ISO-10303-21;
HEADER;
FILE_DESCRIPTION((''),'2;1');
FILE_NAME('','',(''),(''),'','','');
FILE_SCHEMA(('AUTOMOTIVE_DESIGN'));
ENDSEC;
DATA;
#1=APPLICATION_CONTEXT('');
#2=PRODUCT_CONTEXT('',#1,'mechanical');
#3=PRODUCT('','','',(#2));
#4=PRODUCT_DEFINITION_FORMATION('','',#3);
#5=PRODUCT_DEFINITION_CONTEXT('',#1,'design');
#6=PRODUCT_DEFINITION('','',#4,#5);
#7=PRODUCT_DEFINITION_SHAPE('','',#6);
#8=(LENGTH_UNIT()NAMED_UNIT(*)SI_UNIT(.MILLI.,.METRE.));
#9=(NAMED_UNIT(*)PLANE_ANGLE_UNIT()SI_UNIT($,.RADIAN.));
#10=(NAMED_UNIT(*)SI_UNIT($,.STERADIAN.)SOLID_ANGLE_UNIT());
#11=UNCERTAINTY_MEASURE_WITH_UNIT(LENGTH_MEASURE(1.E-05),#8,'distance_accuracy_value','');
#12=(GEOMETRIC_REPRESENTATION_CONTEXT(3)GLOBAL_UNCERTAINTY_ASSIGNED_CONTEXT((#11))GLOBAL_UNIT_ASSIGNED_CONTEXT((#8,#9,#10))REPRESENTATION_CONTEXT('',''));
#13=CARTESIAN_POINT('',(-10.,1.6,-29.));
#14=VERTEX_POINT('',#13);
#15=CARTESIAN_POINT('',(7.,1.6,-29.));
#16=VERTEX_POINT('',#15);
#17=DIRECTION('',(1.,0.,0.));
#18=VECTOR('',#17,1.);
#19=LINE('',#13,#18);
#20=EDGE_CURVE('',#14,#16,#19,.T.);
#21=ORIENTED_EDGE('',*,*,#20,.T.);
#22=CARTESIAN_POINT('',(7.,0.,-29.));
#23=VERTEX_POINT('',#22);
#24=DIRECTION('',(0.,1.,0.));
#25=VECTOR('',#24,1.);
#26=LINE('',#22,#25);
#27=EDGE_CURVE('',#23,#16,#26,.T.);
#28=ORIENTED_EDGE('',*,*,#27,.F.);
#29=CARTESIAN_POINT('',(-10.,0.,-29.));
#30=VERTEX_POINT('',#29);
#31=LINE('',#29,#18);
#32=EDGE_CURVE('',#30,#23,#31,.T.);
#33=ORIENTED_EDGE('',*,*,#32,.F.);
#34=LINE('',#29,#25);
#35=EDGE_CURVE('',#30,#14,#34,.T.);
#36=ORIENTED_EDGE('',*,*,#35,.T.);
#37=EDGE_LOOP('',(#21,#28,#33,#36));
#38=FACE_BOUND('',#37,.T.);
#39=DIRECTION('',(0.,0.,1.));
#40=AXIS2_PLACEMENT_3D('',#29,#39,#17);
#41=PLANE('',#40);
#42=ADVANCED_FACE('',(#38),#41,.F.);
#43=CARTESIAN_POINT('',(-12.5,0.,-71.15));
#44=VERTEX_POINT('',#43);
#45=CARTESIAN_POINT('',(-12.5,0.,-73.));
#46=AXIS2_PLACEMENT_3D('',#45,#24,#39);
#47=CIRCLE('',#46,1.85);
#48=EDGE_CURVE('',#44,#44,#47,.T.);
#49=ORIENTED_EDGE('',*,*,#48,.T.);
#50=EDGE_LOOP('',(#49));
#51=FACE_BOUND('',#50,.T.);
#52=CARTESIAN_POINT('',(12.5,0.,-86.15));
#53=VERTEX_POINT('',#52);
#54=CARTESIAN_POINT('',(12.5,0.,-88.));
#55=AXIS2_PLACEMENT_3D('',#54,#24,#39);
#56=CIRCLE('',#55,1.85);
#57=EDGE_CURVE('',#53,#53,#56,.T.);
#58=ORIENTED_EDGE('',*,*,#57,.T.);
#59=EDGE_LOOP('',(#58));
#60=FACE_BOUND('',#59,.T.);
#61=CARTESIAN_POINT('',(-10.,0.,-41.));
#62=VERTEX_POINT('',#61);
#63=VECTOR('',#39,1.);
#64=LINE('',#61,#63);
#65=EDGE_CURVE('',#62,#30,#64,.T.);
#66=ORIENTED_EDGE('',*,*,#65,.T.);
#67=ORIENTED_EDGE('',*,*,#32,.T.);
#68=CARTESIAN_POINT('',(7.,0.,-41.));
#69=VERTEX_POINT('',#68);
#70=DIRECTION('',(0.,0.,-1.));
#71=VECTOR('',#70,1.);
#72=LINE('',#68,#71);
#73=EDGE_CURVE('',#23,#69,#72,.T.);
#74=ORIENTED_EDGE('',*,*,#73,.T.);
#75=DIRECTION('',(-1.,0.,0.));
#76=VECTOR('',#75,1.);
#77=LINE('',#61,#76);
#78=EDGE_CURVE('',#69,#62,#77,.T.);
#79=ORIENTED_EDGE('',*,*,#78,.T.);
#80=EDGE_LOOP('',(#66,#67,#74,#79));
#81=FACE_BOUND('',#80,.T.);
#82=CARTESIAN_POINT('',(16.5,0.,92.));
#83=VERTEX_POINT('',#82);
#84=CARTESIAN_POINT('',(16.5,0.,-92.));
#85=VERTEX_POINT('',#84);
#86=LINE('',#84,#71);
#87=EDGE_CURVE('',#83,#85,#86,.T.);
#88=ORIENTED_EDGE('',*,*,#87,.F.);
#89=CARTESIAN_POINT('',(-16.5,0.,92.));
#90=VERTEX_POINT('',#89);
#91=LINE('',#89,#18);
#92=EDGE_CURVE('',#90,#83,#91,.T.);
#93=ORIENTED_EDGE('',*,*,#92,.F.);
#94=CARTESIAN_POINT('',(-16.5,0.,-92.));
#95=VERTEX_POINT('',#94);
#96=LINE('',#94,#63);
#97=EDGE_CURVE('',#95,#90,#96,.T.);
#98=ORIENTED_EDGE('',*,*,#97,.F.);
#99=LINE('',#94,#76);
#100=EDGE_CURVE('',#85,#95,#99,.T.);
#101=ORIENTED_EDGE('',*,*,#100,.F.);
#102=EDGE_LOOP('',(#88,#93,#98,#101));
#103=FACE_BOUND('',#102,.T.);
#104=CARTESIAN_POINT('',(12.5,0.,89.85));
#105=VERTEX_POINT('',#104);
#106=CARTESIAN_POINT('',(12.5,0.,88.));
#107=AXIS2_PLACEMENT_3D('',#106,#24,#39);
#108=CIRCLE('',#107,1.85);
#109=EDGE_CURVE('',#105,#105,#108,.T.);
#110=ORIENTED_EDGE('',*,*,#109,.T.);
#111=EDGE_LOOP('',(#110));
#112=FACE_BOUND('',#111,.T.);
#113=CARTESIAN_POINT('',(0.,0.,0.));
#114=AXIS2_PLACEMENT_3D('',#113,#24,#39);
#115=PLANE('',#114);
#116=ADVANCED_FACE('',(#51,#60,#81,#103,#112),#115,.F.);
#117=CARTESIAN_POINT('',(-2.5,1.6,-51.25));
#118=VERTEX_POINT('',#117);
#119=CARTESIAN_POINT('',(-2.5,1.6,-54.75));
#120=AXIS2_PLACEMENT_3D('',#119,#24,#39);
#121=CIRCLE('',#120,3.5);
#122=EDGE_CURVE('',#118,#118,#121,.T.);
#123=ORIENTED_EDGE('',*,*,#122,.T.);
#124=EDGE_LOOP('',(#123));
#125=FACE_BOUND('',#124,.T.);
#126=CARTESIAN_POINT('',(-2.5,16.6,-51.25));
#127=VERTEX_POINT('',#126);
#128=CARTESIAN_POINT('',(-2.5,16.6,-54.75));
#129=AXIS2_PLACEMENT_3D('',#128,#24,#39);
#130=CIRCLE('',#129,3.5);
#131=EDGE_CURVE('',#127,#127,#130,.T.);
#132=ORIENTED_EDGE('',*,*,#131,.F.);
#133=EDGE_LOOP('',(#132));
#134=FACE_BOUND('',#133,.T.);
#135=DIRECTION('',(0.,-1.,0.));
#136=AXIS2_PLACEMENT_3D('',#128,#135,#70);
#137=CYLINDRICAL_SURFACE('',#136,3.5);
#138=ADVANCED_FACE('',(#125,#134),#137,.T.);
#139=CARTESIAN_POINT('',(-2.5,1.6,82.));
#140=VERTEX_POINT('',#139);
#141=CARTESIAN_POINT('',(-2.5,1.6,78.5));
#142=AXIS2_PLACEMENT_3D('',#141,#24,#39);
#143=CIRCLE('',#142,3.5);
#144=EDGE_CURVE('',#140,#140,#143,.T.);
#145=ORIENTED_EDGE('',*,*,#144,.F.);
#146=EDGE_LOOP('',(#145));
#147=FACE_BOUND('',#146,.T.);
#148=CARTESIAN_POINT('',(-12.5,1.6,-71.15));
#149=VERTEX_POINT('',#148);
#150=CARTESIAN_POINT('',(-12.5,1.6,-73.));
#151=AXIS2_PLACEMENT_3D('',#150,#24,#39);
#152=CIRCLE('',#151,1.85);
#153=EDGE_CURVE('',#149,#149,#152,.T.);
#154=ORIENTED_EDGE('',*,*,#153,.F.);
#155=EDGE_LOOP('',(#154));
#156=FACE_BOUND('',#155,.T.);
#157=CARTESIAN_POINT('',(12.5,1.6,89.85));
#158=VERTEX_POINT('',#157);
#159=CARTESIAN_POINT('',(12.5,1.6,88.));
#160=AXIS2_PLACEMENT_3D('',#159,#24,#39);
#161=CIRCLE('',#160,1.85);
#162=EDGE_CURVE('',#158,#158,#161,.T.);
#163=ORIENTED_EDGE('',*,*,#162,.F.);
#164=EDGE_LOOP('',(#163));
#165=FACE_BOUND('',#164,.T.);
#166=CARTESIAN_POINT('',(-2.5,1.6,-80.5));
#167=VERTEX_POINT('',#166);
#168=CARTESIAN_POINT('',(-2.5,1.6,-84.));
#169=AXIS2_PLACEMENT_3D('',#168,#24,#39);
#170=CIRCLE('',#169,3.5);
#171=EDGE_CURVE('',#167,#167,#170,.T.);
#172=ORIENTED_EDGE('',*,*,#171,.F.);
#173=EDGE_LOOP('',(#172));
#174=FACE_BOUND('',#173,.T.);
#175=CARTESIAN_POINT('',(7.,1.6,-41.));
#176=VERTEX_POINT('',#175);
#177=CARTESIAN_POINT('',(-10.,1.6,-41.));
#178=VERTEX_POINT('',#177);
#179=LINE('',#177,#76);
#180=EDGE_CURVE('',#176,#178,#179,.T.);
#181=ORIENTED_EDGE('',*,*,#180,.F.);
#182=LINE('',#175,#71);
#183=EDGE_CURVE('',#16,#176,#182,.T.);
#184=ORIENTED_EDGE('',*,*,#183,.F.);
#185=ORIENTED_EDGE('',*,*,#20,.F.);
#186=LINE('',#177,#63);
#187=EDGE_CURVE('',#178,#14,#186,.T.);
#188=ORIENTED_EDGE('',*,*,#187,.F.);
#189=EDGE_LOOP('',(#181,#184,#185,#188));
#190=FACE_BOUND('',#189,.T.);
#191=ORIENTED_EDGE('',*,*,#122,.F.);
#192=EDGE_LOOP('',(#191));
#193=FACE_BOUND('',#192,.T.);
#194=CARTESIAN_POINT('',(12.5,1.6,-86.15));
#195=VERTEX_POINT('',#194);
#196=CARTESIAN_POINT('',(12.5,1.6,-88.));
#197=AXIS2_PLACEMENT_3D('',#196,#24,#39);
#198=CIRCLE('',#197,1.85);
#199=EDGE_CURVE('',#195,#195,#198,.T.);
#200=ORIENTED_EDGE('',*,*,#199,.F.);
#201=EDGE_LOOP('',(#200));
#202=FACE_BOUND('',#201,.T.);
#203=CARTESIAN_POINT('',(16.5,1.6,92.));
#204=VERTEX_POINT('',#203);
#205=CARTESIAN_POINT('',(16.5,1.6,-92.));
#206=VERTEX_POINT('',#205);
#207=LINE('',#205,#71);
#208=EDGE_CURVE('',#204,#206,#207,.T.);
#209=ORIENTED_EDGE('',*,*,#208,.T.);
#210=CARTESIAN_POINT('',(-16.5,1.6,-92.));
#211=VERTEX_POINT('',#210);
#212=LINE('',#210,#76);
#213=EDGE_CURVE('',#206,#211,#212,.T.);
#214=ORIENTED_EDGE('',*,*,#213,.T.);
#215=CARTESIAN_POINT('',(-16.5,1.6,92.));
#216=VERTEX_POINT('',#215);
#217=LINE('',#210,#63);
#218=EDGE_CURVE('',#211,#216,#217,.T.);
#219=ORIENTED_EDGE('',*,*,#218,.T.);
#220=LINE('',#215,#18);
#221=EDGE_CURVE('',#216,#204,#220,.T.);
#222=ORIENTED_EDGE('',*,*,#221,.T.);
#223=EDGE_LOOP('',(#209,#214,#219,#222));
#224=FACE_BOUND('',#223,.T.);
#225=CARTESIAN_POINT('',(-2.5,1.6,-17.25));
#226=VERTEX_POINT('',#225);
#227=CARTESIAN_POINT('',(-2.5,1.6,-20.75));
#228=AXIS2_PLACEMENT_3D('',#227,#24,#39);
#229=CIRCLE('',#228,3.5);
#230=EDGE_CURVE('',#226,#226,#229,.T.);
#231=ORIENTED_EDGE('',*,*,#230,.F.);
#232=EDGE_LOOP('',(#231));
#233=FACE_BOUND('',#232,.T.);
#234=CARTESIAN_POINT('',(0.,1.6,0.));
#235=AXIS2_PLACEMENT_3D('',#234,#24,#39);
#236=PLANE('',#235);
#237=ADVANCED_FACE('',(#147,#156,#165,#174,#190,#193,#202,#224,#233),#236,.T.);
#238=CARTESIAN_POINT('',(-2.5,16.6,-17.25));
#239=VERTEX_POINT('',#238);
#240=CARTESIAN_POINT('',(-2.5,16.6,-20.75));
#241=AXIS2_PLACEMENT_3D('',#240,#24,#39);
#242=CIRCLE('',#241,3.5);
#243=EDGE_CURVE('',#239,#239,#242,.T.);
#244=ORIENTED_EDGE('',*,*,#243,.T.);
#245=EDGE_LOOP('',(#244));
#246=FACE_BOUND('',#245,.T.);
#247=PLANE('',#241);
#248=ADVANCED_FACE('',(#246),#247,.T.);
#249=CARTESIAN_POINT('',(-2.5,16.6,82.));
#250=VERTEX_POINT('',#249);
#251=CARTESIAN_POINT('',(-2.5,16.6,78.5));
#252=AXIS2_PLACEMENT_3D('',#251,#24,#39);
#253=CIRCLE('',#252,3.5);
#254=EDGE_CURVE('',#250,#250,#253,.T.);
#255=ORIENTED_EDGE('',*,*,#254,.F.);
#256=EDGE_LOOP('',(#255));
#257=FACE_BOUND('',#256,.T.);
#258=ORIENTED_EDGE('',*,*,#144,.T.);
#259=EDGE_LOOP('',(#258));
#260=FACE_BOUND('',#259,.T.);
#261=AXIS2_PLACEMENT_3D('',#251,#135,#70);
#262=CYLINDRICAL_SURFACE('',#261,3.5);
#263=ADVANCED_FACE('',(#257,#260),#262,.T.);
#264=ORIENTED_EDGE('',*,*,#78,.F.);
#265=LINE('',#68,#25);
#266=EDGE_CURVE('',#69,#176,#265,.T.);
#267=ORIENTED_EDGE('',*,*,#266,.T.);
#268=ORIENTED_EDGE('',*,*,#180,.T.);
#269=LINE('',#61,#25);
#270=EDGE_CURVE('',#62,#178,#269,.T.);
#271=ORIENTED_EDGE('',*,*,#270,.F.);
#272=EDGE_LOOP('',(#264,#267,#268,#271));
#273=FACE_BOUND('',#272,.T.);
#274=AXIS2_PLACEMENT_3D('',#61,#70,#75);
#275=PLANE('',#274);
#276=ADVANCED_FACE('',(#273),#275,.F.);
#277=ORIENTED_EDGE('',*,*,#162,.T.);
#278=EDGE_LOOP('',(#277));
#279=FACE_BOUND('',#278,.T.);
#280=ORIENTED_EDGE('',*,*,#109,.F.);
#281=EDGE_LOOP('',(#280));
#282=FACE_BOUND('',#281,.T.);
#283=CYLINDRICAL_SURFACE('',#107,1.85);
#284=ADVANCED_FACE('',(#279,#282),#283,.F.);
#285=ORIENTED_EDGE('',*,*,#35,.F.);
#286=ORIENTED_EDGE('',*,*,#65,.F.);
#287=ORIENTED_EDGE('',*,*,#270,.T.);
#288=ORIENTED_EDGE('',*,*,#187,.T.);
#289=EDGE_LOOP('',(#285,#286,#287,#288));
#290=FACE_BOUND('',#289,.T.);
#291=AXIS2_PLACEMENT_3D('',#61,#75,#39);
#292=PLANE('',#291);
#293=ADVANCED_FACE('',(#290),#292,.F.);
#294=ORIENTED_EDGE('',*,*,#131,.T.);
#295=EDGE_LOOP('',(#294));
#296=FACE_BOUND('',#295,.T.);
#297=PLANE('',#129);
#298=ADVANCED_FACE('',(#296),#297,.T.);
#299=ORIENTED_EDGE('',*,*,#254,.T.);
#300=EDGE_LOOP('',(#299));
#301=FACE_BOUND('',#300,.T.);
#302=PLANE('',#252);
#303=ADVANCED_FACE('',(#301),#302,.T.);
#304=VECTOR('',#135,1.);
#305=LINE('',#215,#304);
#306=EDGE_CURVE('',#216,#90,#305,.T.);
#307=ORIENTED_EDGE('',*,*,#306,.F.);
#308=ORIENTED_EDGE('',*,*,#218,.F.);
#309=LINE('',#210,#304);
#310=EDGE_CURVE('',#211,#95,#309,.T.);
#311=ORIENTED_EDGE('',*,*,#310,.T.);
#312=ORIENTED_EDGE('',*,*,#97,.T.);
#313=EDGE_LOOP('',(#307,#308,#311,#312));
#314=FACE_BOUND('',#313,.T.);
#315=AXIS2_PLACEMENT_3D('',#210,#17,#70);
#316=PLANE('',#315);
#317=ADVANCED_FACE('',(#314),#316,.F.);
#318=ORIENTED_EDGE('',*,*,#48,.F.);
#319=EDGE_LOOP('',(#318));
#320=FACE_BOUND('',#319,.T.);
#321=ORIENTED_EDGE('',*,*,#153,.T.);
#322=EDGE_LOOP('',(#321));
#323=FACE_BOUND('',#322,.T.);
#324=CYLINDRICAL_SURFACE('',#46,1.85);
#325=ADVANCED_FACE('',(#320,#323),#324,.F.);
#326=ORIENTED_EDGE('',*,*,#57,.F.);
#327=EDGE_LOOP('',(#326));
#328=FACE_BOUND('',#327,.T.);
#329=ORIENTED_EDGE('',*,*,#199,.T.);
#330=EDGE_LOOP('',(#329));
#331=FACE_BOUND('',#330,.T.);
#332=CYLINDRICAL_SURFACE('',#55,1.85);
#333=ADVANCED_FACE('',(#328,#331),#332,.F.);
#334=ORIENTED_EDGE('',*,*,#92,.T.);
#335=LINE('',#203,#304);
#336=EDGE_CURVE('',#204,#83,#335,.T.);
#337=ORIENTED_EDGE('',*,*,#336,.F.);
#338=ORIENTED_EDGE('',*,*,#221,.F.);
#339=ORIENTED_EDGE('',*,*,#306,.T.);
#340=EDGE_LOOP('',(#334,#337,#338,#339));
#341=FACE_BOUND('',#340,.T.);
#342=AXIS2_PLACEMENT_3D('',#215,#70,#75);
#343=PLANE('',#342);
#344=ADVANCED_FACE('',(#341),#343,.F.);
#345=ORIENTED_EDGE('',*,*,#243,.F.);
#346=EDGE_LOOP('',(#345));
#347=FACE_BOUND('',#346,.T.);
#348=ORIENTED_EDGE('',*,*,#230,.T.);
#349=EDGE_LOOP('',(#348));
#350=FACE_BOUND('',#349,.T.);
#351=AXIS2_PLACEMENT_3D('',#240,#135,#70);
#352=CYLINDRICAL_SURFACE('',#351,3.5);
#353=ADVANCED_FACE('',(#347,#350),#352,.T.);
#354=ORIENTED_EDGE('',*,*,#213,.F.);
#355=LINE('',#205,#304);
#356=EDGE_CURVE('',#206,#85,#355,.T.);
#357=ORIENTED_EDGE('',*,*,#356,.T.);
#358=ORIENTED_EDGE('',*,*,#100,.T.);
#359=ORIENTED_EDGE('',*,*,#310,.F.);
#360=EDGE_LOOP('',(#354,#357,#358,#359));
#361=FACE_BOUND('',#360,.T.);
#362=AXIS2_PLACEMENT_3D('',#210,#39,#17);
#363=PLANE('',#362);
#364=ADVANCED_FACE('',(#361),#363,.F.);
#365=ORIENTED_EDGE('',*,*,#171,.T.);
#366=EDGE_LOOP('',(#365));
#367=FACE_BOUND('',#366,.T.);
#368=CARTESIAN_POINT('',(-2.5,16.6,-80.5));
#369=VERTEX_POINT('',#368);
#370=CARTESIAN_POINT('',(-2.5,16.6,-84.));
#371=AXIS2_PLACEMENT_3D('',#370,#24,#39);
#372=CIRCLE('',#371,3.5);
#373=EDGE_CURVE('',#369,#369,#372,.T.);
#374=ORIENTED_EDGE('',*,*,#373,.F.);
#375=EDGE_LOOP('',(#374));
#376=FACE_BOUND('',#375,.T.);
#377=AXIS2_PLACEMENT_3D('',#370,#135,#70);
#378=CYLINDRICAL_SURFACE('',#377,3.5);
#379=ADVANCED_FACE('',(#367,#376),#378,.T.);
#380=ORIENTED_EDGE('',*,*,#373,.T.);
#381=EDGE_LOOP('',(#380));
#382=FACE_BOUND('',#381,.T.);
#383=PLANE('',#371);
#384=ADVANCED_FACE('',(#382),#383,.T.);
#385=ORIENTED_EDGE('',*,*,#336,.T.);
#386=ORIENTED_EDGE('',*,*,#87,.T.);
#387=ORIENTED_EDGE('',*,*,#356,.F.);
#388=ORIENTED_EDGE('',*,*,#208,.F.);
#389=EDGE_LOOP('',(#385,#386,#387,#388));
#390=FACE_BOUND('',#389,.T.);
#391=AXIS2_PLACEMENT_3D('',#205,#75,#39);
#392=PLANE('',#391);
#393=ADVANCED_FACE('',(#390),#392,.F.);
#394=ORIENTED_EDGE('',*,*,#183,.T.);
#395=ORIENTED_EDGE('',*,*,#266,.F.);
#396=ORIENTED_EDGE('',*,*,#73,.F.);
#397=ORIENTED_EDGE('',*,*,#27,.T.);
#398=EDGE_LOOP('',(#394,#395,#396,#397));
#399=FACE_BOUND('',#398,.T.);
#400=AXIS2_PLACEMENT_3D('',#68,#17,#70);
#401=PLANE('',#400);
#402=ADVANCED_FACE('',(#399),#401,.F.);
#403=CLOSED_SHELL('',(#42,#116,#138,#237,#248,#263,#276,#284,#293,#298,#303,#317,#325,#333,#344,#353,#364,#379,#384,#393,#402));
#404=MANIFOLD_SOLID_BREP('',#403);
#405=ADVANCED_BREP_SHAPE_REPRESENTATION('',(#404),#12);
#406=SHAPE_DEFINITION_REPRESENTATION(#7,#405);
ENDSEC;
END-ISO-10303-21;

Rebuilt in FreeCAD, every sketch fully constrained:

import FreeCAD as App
import Part
import Sketcher
Q = App.Units.Quantity


def add_polygon(sketch, points):
    """Adds a closed chain of lines whose ends are joined by coincident constraints."""
    first, n = sketch.GeometryCount, len(points)
    for a, b in zip(points, points[1:] + points[:1]):
        sketch.addGeometry(Part.LineSegment(App.Vector(*a, 0), App.Vector(*b, 0)), False)
    for i in range(n):
        sketch.addConstraint(Sketcher.Constraint("Coincident", first + i, 2, first + (i + 1) % n, 1))

doc = App.newDocument("Part")
body = doc.addObject("PartDesign::Body", "Body")

sketch1 = body.newObject("Sketcher::SketchObject", "Sketch")
sketch1.AttachmentSupport = (doc.getObject("XZ_Plane"), [""])
sketch1.MapMode = "FlatFace"
add_polygon(sketch1, [(-16, -92), (-16, 92), (16, 92), (16, -92)])
sketch1.addConstraint([
    Sketcher.Constraint("Vertical", 0),
    Sketcher.Constraint("Horizontal", 1),
    Sketcher.Constraint("Vertical", 2),
    Sketcher.Constraint("Horizontal", 3),
    Sketcher.Constraint("Symmetric", 0, 2, 2, 2, -1, 1),
    Sketcher.Constraint("DistanceX", 1, 1, 1, 2, Q("33 mm")),
    Sketcher.Constraint("DistanceY", 0, 1, 0, 2, Q("184 mm")),
])
pad1 = body.newObject("PartDesign::Pad", "Pad")
pad1.Profile = sketch1
pad1.Length = 1.6
pad1.Reversed = True

sketch2 = body.newObject("Sketcher::SketchObject", "Sketch001")
sketch2.AttachmentSupport = (doc.getObject("XZ_Plane"), [""])
sketch2.MapMode = "FlatFace"
sketch2.AttachmentOffset = App.Placement(App.Vector(0, 0, -1.6), App.Rotation())
sketch2.addGeometry([
    Part.Circle(App.Vector(-12.5, -73, 0), App.Vector(0, 0, 1), 1.9),
    Part.Circle(App.Vector(12.5, -88, 0), App.Vector(0, 0, 1), 1.9),
    Part.Circle(App.Vector(12.5, 88, 0), App.Vector(0, 0, 1), 1.9),
], False)
sketch2.addConstraint([
    Sketcher.Constraint("Equal", 0, 1),
    Sketcher.Constraint("Equal", 1, 2),
    Sketcher.Constraint("Symmetric", 1, 3, 2, 3, -1),
    Sketcher.Constraint("Diameter", 0, Q("3.7 mm")),
    Sketcher.Constraint("DistanceY", 0, 3, -1, 1, Q("73 mm")),
    Sketcher.Constraint("DistanceY", 1, 3, -1, 1, Q("88 mm")),
    Sketcher.Constraint("DistanceX", 0, 3, 1, 3, Q("25 mm")),
    Sketcher.Constraint("DistanceX", 0, 3, -1, 1, Q("12.5 mm")),
])
pocket1 = body.newObject("PartDesign::Pocket", "Pocket")
pocket1.Profile = sketch2
pocket1.Type = "ThroughAll"
pocket1.Reversed = True

sketch3 = body.newObject("Sketcher::SketchObject", "Sketch002")
sketch3.AttachmentSupport = (doc.getObject("XZ_Plane"), [""])
sketch3.MapMode = "FlatFace"
sketch3.AttachmentOffset = App.Placement(App.Vector(0, 0, -1.6), App.Rotation())
sketch3.addGeometry([
    Part.Circle(App.Vector(-2.5, -84, 0), App.Vector(0, 0, 1), 3.5),
    Part.Circle(App.Vector(-2.5, -54.8, 0), App.Vector(0, 0, 1), 3.5),
    Part.Circle(App.Vector(-2.5, -20.8, 0), App.Vector(0, 0, 1), 3.5),
    Part.Circle(App.Vector(-2.5, 78.5, 0), App.Vector(0, 0, 1), 3.5),
], False)
sketch3.addConstraint([
    Sketcher.Constraint("Equal", 0, 1),
    Sketcher.Constraint("Equal", 1, 2),
    Sketcher.Constraint("Equal", 2, 3),
    Sketcher.Constraint("Vertical", 0, 3, 1, 3),
    Sketcher.Constraint("Vertical", 1, 3, 2, 3),
    Sketcher.Constraint("Vertical", 2, 3, 3, 3),
    Sketcher.Constraint("Diameter", 0, Q("7 mm")),
    Sketcher.Constraint("DistanceY", 0, 3, -1, 1, Q("84 mm")),
    Sketcher.Constraint("DistanceY", 1, 3, 2, 3, Q("34 mm")),
    Sketcher.Constraint("DistanceX", 0, 3, -1, 1, Q("2.5 mm")),
    Sketcher.Constraint("DistanceY", -1, 1, 3, 3, Q("78.5 mm")),
    Sketcher.Constraint("DistanceY", 1, 3, -1, 1, Q("54.75 mm")),
])
pad2 = body.newObject("PartDesign::Pad", "Pad001")
pad2.Profile = sketch3
pad2.Length = 15
pad2.Reversed = True

sketch4 = body.newObject("Sketcher::SketchObject", "Sketch003")
sketch4.AttachmentSupport = (doc.getObject("XZ_Plane"), [""])
sketch4.MapMode = "FlatFace"
sketch4.AttachmentOffset = App.Placement(App.Vector(0, 0, -1.6), App.Rotation())
add_polygon(sketch4, [(-10, -41), (-10, -29), (7, -29), (7, -41)])
sketch4.addConstraint([
    Sketcher.Constraint("Vertical", 0),
    Sketcher.Constraint("Horizontal", 1),
    Sketcher.Constraint("Vertical", 2),
    Sketcher.Constraint("Horizontal", 3),
    Sketcher.Constraint("DistanceX", 1, 1, 1, 2, Q("17 mm")),
    Sketcher.Constraint("DistanceY", 0, 1, 0, 2, Q("12 mm")),
    Sketcher.Constraint("DistanceX", 0, 2, -1, 1, Q("10 mm")),
    Sketcher.Constraint("DistanceY", 0, 2, -1, 1, Q("29 mm")),
])
pocket2 = body.newObject("PartDesign::Pocket", "Pocket001")
pocket2.Profile = sketch4
pocket2.Type = "ThroughAll"
pocket2.Reversed = True

doc.recompute()
